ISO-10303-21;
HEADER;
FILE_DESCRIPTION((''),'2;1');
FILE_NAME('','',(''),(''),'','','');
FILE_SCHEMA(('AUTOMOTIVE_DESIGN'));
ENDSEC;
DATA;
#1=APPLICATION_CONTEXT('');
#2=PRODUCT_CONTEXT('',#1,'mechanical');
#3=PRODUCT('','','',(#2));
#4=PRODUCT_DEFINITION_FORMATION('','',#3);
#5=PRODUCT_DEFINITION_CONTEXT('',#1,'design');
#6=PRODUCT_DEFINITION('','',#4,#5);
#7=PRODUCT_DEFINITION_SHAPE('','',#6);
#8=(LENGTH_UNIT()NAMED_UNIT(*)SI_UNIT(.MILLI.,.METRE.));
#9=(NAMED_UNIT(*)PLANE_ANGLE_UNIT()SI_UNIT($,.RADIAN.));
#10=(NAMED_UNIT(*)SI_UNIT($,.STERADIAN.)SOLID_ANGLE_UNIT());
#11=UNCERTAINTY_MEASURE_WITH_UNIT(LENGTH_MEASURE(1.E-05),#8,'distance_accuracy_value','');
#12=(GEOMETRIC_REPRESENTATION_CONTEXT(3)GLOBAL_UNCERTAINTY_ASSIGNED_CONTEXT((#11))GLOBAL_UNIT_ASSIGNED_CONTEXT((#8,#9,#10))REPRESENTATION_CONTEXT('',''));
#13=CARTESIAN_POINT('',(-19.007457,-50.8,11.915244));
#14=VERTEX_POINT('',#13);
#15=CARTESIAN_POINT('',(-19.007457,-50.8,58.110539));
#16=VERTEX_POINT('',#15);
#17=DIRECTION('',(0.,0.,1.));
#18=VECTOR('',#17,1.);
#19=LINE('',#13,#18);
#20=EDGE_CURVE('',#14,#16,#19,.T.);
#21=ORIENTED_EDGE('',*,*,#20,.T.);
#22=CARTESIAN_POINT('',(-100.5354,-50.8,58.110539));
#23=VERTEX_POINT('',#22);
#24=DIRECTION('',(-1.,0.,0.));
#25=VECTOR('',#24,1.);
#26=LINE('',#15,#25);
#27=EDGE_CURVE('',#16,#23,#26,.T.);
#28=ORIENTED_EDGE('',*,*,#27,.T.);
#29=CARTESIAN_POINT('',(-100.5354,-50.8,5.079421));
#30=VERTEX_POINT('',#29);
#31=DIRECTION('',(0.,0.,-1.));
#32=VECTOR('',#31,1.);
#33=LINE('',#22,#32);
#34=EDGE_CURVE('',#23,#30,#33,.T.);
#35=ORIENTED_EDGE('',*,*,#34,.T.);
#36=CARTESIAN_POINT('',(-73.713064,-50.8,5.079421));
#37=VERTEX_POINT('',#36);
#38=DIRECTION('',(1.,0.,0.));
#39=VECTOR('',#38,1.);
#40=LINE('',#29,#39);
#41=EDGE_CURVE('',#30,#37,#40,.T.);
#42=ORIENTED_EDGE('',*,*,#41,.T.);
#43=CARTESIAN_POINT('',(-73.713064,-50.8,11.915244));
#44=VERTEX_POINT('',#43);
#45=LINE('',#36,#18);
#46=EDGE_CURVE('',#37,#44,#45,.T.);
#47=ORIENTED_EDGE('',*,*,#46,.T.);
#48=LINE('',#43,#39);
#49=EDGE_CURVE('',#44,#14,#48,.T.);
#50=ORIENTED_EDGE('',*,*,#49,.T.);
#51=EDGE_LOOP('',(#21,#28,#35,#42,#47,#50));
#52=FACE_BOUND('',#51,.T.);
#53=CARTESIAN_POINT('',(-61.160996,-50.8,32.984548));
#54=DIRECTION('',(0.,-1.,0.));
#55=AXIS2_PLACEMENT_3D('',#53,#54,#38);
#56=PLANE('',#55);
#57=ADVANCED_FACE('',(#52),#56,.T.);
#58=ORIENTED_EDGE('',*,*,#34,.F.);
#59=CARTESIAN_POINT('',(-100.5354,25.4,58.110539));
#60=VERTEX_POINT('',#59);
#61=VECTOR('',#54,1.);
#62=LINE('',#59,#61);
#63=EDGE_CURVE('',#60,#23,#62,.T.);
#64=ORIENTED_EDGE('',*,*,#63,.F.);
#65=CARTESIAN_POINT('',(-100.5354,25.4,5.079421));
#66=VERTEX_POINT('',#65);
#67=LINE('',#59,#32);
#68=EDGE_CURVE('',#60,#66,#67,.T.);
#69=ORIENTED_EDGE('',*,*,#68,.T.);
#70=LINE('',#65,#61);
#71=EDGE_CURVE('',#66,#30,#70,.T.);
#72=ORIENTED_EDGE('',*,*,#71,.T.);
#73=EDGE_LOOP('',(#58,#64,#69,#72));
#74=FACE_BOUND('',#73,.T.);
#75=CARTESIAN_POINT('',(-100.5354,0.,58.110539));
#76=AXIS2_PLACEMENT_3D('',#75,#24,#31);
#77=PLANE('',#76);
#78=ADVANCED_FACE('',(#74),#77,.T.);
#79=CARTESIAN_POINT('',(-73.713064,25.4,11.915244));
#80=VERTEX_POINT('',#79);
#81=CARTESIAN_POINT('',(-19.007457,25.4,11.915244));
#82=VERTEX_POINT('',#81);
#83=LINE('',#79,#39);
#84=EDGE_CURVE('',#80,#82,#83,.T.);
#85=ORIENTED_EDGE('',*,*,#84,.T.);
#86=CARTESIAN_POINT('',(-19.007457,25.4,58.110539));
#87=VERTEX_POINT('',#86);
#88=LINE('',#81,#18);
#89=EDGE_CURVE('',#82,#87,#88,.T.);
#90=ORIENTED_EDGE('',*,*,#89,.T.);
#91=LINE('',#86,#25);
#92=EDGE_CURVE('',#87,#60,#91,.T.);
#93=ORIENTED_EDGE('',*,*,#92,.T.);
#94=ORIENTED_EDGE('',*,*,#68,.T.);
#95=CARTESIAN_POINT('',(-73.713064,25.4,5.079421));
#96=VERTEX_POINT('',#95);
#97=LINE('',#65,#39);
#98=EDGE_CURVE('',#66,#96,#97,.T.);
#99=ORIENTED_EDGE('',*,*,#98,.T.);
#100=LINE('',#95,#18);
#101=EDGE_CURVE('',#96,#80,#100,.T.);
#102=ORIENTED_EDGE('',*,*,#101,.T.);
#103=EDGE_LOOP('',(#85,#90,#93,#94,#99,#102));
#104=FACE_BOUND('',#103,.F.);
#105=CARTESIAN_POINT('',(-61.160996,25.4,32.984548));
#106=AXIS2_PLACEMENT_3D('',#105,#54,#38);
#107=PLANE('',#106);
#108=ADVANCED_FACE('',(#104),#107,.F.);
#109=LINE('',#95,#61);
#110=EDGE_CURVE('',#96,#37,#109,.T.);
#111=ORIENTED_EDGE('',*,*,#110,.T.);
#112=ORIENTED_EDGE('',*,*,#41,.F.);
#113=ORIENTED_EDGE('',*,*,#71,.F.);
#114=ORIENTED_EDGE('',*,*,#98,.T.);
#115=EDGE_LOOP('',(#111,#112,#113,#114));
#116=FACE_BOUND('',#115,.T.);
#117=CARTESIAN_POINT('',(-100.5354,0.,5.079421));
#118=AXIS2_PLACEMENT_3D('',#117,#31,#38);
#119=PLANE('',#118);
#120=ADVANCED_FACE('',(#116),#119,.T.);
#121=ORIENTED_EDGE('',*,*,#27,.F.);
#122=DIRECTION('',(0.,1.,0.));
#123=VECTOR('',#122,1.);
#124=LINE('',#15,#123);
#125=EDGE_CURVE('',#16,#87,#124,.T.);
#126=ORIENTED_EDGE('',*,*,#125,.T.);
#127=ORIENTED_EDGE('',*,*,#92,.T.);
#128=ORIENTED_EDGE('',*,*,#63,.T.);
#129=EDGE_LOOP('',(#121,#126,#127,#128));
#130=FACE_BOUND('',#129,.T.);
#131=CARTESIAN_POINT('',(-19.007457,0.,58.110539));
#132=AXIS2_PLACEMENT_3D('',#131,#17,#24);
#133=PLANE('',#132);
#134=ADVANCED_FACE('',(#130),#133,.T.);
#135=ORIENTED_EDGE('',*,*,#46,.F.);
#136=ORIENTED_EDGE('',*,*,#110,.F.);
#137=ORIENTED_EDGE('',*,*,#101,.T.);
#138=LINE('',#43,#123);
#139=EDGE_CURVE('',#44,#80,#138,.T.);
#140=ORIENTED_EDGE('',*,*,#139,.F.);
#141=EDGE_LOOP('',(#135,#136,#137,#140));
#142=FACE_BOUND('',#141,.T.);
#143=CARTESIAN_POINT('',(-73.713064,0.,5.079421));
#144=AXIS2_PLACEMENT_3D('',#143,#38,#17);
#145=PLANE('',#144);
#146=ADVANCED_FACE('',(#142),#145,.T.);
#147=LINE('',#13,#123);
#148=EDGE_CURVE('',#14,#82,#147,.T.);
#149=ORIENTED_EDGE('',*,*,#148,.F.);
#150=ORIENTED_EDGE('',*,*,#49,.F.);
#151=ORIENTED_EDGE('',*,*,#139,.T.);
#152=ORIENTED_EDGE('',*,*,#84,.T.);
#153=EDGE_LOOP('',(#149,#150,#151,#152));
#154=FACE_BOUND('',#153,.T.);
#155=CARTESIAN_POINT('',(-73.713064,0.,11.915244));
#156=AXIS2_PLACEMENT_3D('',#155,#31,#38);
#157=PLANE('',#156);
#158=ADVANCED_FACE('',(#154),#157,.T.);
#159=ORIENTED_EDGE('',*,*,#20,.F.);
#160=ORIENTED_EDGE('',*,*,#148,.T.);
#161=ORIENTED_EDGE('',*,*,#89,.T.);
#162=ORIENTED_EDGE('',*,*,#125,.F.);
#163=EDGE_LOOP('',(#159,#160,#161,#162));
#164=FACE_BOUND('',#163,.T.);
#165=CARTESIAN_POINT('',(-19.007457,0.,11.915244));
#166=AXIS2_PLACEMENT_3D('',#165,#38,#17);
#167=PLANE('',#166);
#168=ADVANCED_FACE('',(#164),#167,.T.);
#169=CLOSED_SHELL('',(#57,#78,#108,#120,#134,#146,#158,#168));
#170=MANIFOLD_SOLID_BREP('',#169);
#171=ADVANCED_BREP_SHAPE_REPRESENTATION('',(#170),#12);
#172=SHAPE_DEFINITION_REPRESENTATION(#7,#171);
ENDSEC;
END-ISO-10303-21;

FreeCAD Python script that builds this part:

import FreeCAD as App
import Part
import Sketcher

V = App.Vector
Q = App.Units.Quantity


def add_polygon(sketch, points):
    """Adds a closed chain of lines whose ends are joined by coincident constraints."""
    first, n = sketch.GeometryCount, len(points)
    for a, b in zip(points, points[1:] + points[:1]):
        sketch.addGeometry(Part.LineSegment(App.Vector(*a, 0), App.Vector(*b, 0)), False)
    for i in range(n):
        sketch.addConstraint(Sketcher.Constraint("Coincident", first + i, 2, first + (i + 1) % n, 1))

doc = App.newDocument("Part")
body = doc.addObject("PartDesign::Body", "Body")

sketch1 = doc.addObject("Sketcher::SketchObject", "Sketch")
body.addObject(sketch1)
sketch1.AttachmentSupport = (doc.XZ_Plane, [""])
sketch1.MapMode = "FlatFace"
add_polygon(sketch1, [(-19.007457, 58.110539), (-100.5354, 58.110539), (-100.5354, 5.079421), (-73.713064, 5.079421), (-73.713064, 11.915244), (-19.007457, 11.915244)])
sketch1.addConstraint([
    Sketcher.Constraint("Horizontal", 0),
    Sketcher.Constraint("Vertical", 1),
    Sketcher.Constraint("Horizontal", 2),
    Sketcher.Constraint("Vertical", 3),
    Sketcher.Constraint("Horizontal", 4),
    Sketcher.Constraint("Vertical", 5),
    Sketcher.Constraint("DistanceY", 1, 2, 1, 1, 53.031118),
    Sketcher.Constraint("DistanceX", 0, 2, -1, 1, 100.5354),
    Sketcher.Constraint("DistanceX", 0, 2, 0, 1, 81.527943),
    Sketcher.Constraint("DistanceX", 2, 1, 2, 2, 26.822336),
    Sketcher.Constraint("DistanceY", 3, 1, 3, 2, 6.835823),
    Sketcher.Constraint("DistanceY", -1, 1, 0, 2, 58.110539),
])
pad1 = doc.addObject("PartDesign::Pad", "Pad")
body.addObject(pad1)
pad1.Profile = sketch1
pad1.Type = "TwoLengths"
pad1.Length = Q("2 in")
pad1.Length2 = Q("1 in")

doc.recompute()
